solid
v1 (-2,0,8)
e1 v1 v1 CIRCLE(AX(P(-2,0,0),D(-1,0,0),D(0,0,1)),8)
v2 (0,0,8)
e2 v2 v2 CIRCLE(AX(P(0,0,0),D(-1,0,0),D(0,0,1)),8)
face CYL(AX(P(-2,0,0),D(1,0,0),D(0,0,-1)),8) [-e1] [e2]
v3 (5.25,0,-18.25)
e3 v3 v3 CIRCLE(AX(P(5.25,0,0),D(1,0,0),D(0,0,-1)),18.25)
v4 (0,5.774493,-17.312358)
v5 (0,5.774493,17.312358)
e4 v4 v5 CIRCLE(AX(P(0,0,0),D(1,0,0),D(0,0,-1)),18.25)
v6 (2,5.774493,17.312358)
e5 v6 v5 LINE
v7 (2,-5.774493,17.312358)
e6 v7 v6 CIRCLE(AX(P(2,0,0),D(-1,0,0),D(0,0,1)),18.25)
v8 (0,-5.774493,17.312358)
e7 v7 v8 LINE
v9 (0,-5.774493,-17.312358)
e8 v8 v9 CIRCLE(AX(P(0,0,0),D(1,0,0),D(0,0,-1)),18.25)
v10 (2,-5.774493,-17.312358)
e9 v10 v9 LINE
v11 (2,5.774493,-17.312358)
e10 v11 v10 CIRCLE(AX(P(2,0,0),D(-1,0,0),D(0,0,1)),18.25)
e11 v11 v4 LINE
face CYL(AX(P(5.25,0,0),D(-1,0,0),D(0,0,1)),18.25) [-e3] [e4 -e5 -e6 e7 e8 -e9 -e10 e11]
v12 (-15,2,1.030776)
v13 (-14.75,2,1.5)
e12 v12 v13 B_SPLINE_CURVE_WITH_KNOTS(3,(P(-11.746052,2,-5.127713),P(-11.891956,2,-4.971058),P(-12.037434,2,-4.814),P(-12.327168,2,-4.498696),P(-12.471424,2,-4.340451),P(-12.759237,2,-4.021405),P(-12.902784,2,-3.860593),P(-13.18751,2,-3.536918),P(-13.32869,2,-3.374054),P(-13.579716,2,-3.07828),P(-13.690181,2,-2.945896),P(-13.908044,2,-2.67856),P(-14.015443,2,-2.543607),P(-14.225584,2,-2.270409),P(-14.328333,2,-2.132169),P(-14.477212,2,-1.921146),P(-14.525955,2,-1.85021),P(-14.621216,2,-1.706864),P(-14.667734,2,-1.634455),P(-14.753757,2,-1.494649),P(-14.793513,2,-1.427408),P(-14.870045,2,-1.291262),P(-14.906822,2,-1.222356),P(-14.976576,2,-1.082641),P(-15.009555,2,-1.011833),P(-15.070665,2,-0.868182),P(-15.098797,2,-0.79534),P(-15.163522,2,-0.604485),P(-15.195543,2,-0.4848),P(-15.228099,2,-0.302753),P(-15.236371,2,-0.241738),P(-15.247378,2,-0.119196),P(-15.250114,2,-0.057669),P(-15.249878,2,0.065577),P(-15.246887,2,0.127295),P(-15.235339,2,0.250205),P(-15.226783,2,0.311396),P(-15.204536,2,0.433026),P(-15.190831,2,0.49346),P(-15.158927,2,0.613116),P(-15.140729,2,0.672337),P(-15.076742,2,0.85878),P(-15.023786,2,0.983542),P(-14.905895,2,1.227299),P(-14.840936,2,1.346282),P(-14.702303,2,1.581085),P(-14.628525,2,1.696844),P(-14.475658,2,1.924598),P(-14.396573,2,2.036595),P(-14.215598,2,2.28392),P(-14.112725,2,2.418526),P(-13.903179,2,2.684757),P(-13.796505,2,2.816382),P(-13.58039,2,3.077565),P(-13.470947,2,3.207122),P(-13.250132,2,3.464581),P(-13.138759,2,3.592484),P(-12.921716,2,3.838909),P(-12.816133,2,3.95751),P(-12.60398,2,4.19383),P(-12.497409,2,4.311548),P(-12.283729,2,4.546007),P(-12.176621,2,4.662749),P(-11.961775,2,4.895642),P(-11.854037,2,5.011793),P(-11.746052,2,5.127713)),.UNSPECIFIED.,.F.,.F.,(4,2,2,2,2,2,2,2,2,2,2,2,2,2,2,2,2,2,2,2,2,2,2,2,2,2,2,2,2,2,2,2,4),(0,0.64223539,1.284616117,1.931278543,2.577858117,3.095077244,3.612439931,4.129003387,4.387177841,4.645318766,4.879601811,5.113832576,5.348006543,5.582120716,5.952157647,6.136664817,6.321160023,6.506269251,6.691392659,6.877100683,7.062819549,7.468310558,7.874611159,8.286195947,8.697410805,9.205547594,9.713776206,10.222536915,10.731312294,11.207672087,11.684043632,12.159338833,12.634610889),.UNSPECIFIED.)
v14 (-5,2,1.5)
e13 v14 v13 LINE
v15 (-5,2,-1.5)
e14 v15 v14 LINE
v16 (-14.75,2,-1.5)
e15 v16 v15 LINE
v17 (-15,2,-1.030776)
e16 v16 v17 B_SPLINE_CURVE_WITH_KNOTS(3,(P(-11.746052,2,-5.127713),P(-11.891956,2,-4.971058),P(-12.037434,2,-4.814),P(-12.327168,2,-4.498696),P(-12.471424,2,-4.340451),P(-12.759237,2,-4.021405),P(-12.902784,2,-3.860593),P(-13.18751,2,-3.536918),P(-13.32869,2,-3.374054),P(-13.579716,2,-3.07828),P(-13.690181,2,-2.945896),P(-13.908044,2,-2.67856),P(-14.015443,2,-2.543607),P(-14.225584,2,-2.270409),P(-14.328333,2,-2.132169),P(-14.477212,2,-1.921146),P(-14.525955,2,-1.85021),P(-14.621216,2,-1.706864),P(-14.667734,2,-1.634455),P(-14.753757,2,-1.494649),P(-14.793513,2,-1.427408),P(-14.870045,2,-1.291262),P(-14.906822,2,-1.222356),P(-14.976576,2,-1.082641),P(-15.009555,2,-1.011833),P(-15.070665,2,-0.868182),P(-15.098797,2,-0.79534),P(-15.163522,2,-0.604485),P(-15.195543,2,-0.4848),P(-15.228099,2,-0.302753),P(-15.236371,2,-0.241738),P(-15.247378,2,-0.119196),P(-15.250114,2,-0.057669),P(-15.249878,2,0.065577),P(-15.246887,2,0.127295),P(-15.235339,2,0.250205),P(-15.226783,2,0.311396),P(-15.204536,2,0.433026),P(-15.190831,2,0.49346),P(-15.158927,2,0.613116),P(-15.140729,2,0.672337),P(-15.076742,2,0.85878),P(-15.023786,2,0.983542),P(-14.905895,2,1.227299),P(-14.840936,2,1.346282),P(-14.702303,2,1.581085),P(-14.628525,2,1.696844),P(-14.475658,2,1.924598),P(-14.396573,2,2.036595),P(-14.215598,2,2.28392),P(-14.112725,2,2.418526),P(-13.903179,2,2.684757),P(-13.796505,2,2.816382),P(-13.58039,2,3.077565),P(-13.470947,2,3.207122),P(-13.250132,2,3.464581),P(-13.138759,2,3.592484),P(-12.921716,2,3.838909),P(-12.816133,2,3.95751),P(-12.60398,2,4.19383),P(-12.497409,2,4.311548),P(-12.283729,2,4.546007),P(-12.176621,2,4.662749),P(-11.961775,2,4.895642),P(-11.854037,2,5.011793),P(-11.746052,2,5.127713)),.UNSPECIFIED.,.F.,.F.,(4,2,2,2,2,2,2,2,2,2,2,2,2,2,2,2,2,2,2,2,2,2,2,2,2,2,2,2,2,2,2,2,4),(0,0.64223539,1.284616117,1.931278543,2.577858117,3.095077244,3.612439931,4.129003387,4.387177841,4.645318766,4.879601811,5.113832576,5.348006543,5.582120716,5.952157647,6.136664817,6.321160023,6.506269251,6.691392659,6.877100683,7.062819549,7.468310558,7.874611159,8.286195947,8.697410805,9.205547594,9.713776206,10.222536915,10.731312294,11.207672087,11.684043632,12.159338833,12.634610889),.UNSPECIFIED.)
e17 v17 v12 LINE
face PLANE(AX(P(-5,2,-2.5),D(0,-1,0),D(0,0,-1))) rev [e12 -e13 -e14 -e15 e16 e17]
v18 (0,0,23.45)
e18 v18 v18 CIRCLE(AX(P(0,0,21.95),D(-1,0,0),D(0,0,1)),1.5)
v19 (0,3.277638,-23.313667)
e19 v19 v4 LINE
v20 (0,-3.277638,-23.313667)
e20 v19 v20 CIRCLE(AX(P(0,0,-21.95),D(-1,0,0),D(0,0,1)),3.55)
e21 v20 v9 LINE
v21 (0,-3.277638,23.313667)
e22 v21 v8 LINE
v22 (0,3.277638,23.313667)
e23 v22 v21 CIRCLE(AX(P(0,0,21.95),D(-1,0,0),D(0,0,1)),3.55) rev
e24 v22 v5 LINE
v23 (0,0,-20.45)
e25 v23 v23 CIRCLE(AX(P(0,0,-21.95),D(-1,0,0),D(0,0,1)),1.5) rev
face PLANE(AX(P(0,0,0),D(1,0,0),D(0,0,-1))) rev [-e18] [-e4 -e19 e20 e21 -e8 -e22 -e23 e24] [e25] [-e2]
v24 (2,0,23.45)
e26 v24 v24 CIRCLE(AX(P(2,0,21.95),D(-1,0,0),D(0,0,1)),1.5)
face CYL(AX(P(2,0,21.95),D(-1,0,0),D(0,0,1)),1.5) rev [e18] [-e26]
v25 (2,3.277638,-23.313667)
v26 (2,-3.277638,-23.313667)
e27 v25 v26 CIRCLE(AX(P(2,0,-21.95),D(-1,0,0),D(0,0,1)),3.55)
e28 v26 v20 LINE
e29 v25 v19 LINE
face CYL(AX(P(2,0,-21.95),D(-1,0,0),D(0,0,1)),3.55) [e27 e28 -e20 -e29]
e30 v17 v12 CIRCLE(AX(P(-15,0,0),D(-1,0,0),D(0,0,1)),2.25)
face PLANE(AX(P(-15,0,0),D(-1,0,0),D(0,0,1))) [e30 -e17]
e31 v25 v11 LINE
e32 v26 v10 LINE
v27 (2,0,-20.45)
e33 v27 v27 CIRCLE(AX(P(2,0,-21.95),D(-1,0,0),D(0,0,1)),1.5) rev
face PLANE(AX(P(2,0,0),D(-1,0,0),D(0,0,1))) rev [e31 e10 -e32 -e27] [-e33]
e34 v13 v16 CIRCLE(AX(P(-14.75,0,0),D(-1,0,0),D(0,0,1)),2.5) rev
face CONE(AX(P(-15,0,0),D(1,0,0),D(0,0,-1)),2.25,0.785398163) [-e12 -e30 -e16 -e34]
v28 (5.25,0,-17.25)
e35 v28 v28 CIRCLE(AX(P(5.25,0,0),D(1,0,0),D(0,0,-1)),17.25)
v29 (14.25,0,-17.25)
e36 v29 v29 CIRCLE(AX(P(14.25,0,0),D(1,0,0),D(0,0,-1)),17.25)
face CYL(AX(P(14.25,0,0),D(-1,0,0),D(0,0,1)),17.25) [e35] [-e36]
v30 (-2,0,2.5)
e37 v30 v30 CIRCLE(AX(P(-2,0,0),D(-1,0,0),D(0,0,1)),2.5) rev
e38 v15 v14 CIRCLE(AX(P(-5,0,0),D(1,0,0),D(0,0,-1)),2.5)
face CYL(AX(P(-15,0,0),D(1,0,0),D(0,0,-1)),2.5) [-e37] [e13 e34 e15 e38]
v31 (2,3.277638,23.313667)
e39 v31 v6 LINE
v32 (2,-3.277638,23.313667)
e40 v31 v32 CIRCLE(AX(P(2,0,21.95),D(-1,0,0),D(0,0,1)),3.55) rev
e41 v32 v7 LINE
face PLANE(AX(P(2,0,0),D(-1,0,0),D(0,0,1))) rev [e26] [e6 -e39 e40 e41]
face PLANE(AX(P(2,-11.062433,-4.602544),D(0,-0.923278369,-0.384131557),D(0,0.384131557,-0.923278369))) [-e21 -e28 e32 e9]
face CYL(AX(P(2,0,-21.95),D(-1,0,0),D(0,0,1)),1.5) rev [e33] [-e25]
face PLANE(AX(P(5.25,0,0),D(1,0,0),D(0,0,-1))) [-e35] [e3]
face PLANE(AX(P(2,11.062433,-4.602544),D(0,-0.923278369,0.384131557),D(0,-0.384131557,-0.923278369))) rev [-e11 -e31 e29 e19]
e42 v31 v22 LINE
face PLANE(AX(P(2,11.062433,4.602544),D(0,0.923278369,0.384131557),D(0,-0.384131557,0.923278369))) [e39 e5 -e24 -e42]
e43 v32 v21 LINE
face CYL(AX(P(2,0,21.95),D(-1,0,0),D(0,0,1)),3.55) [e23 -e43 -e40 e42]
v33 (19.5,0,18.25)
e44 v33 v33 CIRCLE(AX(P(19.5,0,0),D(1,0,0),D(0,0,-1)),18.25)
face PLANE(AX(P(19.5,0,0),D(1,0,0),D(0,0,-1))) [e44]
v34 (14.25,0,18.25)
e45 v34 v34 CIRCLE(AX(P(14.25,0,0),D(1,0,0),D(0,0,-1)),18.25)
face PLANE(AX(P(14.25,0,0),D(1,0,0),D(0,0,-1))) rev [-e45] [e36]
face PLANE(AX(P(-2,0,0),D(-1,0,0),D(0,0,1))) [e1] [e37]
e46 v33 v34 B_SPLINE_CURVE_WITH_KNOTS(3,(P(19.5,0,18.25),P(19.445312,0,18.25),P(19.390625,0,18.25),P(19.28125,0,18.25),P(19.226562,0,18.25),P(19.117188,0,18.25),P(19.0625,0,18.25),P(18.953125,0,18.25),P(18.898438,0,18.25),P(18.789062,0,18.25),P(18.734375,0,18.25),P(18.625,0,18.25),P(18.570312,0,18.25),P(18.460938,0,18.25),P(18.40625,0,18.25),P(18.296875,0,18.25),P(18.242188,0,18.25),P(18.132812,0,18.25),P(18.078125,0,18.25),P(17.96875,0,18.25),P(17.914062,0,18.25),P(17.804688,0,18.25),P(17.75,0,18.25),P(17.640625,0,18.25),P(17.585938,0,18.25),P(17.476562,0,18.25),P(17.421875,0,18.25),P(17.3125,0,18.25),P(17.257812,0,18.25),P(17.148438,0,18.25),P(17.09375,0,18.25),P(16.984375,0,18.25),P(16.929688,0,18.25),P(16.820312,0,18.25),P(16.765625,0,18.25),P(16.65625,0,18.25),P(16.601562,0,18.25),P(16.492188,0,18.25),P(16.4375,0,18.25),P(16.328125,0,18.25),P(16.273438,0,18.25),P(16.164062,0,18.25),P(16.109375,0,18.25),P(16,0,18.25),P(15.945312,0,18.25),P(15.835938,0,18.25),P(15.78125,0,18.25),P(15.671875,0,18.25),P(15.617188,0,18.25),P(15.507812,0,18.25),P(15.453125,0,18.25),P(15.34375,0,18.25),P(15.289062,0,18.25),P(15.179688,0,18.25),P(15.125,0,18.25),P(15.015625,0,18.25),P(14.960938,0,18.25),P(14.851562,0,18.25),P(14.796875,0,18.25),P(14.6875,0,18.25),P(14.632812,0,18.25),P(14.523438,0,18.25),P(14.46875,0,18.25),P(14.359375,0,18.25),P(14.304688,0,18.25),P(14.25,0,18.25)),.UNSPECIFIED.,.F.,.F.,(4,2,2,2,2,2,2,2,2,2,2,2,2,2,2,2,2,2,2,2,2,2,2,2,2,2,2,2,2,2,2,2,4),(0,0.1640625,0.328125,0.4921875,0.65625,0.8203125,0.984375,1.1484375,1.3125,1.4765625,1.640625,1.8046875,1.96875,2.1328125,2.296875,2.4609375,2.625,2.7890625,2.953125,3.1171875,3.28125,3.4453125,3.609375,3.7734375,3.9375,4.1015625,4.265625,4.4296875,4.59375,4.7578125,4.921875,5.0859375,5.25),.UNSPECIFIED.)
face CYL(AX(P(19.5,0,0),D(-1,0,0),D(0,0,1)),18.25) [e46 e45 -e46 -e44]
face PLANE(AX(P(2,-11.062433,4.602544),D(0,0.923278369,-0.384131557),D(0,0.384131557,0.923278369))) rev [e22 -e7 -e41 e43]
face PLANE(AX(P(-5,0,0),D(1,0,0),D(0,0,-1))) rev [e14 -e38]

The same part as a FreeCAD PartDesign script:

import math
import FreeCAD as App
import Part
import Sketcher

V = App.Vector
Q = App.Units.Quantity


def edges_at(feature, points):
    """Names of the edges that pass closest to the given points."""
    edges = feature.Shape.Edges
    near = lambda p: min(range(len(edges)), key=lambda i: edges[i].distToShape(Part.Vertex(*p))[0])
    return sorted({f"Edge{near(p) + 1}" for p in points})

doc = App.newDocument("Part")
params = doc.addObject("Spreadsheet::Sheet", "Params")
for row, (alias, value) in enumerate([
    ("sketch1_diameter", "36.5 mm"),
    ("pad1_length", "5.25 mm"),
    ("sketch2_diameter", "34.5 mm"),
    ("pad2_length", "9 mm"),
    ("sketch3_diameter", "36.5 mm"),
    ("pad3_length", "5.25 mm"),
    ("sketch4_diameter", "3 mm"),
    ("sketch4_radius", "3.55 mm"),
    ("sketch4_radius2", "18.25 mm"),
    ("sketch4_length", "6.5 mm"),
    ("pad4_length", "2 mm"),
    ("sketch5_diameter", "16 mm"),
    ("pad5_length", "2 mm"),
    ("sketch6_diameter", "5 mm"),
    ("pad6_length", "15 mm"),
    ("chamfer_size", "0.25 mm"),
    ("sketch7_width", "1 mm"),
    ("sketch7_height", "5 mm"),
    ("pocket1_length", "10 mm"),
], start=1):
    params.set(f"A{row}", alias)
    params.set(f"B{row}", "=" + value)
    params.setAlias(f"B{row}", alias)

body = doc.addObject("PartDesign::Body", "Body")

# Sketch on YZ plane
sketch1 = doc.addObject("Sketcher::SketchObject", "Sketch")
body.addObject(sketch1)
sketch1.AttachmentSupport = (doc.YZ_Plane, [""])
sketch1.MapMode = "FlatFace"
sketch1.addGeometry(Part.Circle(V(0, 0, 0), V(0, 0, 1), 18), False)
sketch1.addConstraint([
    Sketcher.Constraint("Coincident", 0, 3, -1, 1),
    Sketcher.Constraint("Diameter", 0, Q("36.5 mm")),
])
sketch1.setExpression("Constraints[1]", "Params.sketch1_diameter")
pad1 = doc.addObject("PartDesign::Pad", "Pad")
body.addObject(pad1)
pad1.Profile = sketch1
pad1.setExpression("Length", "Params.pad1_length")

# Sketch on YZ plane
sketch2 = doc.addObject("Sketcher::SketchObject", "Sketch001")
body.addObject(sketch2)
sketch2.AttachmentSupport = (doc.YZ_Plane, [""])
sketch2.MapMode = "FlatFace"
sketch2.AttachmentOffset = App.Placement(V(0, 0, 5.25), App.Rotation())
sketch2.addGeometry(Part.Circle(V(0, 0, 0), V(0, 0, 1), 17), False)
sketch2.addConstraint([
    Sketcher.Constraint("Coincident", 0, 3, -1, 1),
    Sketcher.Constraint("Diameter", 0, Q("34.5 mm")),
])
sketch2.setExpression("Constraints[1]", "Params.sketch2_diameter")
pad2 = doc.addObject("PartDesign::Pad", "Pad001")
body.addObject(pad2)
pad2.Profile = sketch2
pad2.setExpression("Length", "Params.pad2_length")

# Sketch on YZ plane
sketch3 = doc.addObject("Sketcher::SketchObject", "Sketch002")
body.addObject(sketch3)
sketch3.AttachmentSupport = (doc.YZ_Plane, [""])
sketch3.MapMode = "FlatFace"
sketch3.AttachmentOffset = App.Placement(V(0, 0, 14.25), App.Rotation())
sketch3.addGeometry(Part.Circle(V(0, 0, 0), V(0, 0, 1), 18), False)
sketch3.addConstraint([
    Sketcher.Constraint("Coincident", 0, 3, -1, 1),
    Sketcher.Constraint("Diameter", 0, Q("36.5 mm")),
])
sketch3.setExpression("Constraints[1]", "Params.sketch3_diameter")
pad3 = doc.addObject("PartDesign::Pad", "Pad002")
body.addObject(pad3)
pad3.Profile = sketch3
pad3.setExpression("Length", "Params.pad3_length")

# Sketch on YZ plane
sketch4 = doc.addObject("Sketcher::SketchObject", "Sketch003")
body.addObject(sketch4)
sketch4.AttachmentSupport = (doc.YZ_Plane, [""])
sketch4.MapMode = "FlatFace"
sketch4.addGeometry([
    Part.ArcOfCircle(Part.Circle(V(0, 21.9, 0), V(0, 0, 1), 3.5), math.radians(23), math.radians(157)),  # 0
    Part.LineSegment(V(3.3, 23.3, 0), V(5.8, 17.3, 0)),  # 1
    Part.ArcOfCircle(Part.Circle(V(0, 0, 0), V(0, 0, 1), 18.2), math.radians(71.55), math.radians(90)),  # 2
    Part.ArcOfCircle(Part.Circle(V(0, 0, 0), V(0, 0, 1), 18.2), math.radians(90), math.radians(108.45)),  # 3
    Part.LineSegment(V(-5.8, 17.3, 0), V(-3.3, 23.3, 0)),  # 4
    Part.Circle(V(0, 21.9, 0), V(0, 0, 1), 1.5),  # 5
    Part.ArcOfCircle(Part.Circle(V(0, 0, 0), V(0, 0, 1), 18.2), math.radians(-108), math.radians(-72)),  # 6
    Part.LineSegment(V(5.8, -17.3, 0), V(3.3, -23.3, 0)),  # 7
    Part.ArcOfCircle(Part.Circle(V(0, -21.9, 0), V(0, 0, 1), 3.5), math.radians(-157), math.radians(-23)),  # 8
    Part.LineSegment(V(-3.3, -23.3, 0), V(-5.8, -17.3, 0)),  # 9
    Part.Circle(V(0, -21.9, 0), V(0, 0, 1), 1.5),  # 10
], False)
sketch4.addConstraint([
    Sketcher.Constraint("Tangent", 0, 1, 1, 1),
    Sketcher.Constraint("Coincident", 1, 2, 2, 1),
    Sketcher.Constraint("Tangent", 2, 2, 3, 1),
    Sketcher.Constraint("Coincident", 3, 2, 4, 1),
    Sketcher.Constraint("Tangent", 4, 2, 0, 2),
    Sketcher.Constraint("Coincident", 6, 2, 7, 1),
    Sketcher.Constraint("Tangent", 7, 2, 8, 2),
    Sketcher.Constraint("Tangent", 8, 1, 9, 1),
    Sketcher.Constraint("Coincident", 9, 2, 6, 1),
    Sketcher.Constraint("Coincident", 2, 3, -1, 1),
    Sketcher.Constraint("Coincident", 6, 3, -1, 1),
    Sketcher.Constraint("Coincident", 5, 3, 0, 3),
    Sketcher.Constraint("Coincident", 10, 3, 8, 3),
    Sketcher.Constraint("Equal", 2, 3),
    Sketcher.Constraint("Equal", 3, 6),
    Sketcher.Constraint("Equal", 0, 8),
    Sketcher.Constraint("Equal", 5, 10),
    Sketcher.Constraint("Symmetric", 0, 3, 8, 3, -1, 1),
    Sketcher.Constraint("Symmetric", 0, 1, 4, 2, -2),
    Sketcher.Constraint("PointOnObject", 2, 2, -2),
    Sketcher.Constraint("Parallel", 4, 7),
    Sketcher.Constraint("Parallel", 1, 9),
    Sketcher.Constraint("Diameter", 5, Q("3 mm")),
    Sketcher.Constraint("Radius", 0, Q("3.55 mm")),
    Sketcher.Constraint("Radius", 2, Q("18.25 mm")),
    Sketcher.Constraint("Distance", 1, Q("6.5 mm")),
    Sketcher.Constraint("DistanceY", 8, 3, 0, 3, Q("43.9 mm")),
])
sketch4.setExpression("Constraints[22]", "Params.sketch4_diameter")
sketch4.setExpression("Constraints[23]", "Params.sketch4_radius")
sketch4.setExpression("Constraints[24]", "Params.sketch4_radius2")
sketch4.setExpression("Constraints[25]", "Params.sketch4_length")
pad4 = doc.addObject("PartDesign::Pad", "Pad003")
body.addObject(pad4)
pad4.Profile = sketch4
pad4.setExpression("Length", "Params.pad4_length")

# Sketch on YZ plane
sketch5 = doc.addObject("Sketcher::SketchObject", "Sketch004")
body.addObject(sketch5)
sketch5.AttachmentSupport = (doc.YZ_Plane, [""])
sketch5.MapMode = "FlatFace"
sketch5.addGeometry(Part.Circle(V(0, 0, 0), V(0, 0, 1), 8), False)
sketch5.addConstraint([
    Sketcher.Constraint("Coincident", 0, 3, -1, 1),
    Sketcher.Constraint("Diameter", 0, Q("16 mm")),
])
sketch5.setExpression("Constraints[1]", "Params.sketch5_diameter")
pad5 = doc.addObject("PartDesign::Pad", "Pad004")
body.addObject(pad5)
pad5.Profile = sketch5
pad5.setExpression("Length", "Params.pad5_length")
pad5.Reversed = True

# Sketch on YZ plane
sketch6 = doc.addObject("Sketcher::SketchObject", "Sketch005")
body.addObject(sketch6)
sketch6.AttachmentSupport = (doc.YZ_Plane, [""])
sketch6.MapMode = "FlatFace"
sketch6.addGeometry(Part.Circle(V(0, 0, 0), V(0, 0, 1), 2.5), False)
sketch6.addConstraint([
    Sketcher.Constraint("Coincident", 0, 3, -1, 1),
    Sketcher.Constraint("Diameter", 0, Q("5 mm")),
])
sketch6.setExpression("Constraints[1]", "Params.sketch6_diameter")
pad6 = doc.addObject("PartDesign::Pad", "Pad005")
body.addObject(pad6)
pad6.Profile = sketch6
pad6.setExpression("Length", "Params.pad6_length")
pad6.Reversed = True
doc.recompute()

chamfer = doc.addObject("PartDesign::Chamfer", "Chamfer")
body.addObject(chamfer)
chamfer.Base = (pad6, edges_at(pad6, [(-15, 0, -2.5)]))
chamfer.setExpression("Size", "Params.chamfer_size")

# Sketch on YZ plane
sketch7 = doc.addObject("Sketcher::SketchObject", "Sketch006")
body.addObject(sketch7)
sketch7.AttachmentSupport = (doc.YZ_Plane, [""])
sketch7.MapMode = "FlatFace"
sketch7.AttachmentOffset = App.Placement(V(0, 0, -15), App.Rotation())
sketch7.addGeometry([
    Part.LineSegment(V(3, -2.5, 0), V(2, -2.5, 0)),
    Part.LineSegment(V(2, -2.5, 0), V(2, 2.5, 0)),
    Part.LineSegment(V(2, 2.5, 0), V(3, 2.5, 0)),
    Part.LineSegment(V(3, 2.5, 0), V(3, -2.5, 0)),
], False)
sketch7.addConstraint([
    Sketcher.Constraint("Coincident", 0, 2, 1, 1),
    Sketcher.Constraint("Coincident", 1, 2, 2, 1),
    Sketcher.Constraint("Coincident", 2, 2, 3, 1),
    Sketcher.Constraint("Coincident", 3, 2, 0, 1),
    Sketcher.Constraint("Horizontal", 0),
    Sketcher.Constraint("Vertical", 1),
    Sketcher.Constraint("Horizontal", 2),
    Sketcher.Constraint("Vertical", 3),
    Sketcher.Constraint("DistanceX", 0, 2, 0, 1, Q("1 mm")),
    Sketcher.Constraint("DistanceY", 1, 1, 1, 2, Q("5 mm")),
    Sketcher.Constraint("DistanceX", -1, 1, 0, 2, Q("2 mm")),
    Sketcher.Constraint("DistanceY", 0, 2, -1, 1, Q("2.5 mm")),
])
sketch7.setExpression("Constraints[8]", "Params.sketch7_width")
sketch7.setExpression("Constraints[9]", "Params.sketch7_height")
pocket1 = doc.addObject("PartDesign::Pocket", "Pocket")
body.addObject(pocket1)
pocket1.Profile = sketch7
pocket1.setExpression("Length", "Params.pocket1_length")
pocket1.Reversed = True

doc.recompute()
